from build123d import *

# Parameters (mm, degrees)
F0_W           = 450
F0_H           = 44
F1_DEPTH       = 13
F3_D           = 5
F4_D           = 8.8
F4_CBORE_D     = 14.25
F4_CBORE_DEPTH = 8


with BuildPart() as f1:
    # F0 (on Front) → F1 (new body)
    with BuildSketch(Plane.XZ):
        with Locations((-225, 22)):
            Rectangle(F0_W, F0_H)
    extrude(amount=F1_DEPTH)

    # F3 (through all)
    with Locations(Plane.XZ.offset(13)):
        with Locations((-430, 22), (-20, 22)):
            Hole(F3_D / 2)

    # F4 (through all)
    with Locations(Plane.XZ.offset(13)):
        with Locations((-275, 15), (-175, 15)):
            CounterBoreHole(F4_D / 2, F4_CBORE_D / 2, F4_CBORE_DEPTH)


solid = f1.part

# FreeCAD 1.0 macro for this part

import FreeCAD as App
import Part
import Sketcher
Q = App.Units.Quantity


def add_polygon(sketch, points):
    """Adds a closed chain of lines whose ends are joined by coincident constraints."""
    first, n = sketch.GeometryCount, len(points)
    for a, b in zip(points, points[1:] + points[:1]):
        sketch.addGeometry(Part.LineSegment(App.Vector(*a, 0), App.Vector(*b, 0)), False)
    for i in range(n):
        sketch.addConstraint(Sketcher.Constraint("Coincident", first + i, 2, first + (i + 1) % n, 1))

doc = App.newDocument("Part")
body = doc.addObject("PartDesign::Body", "Body")

# Sketch on XZ plane
sketch1 = body.newObject("Sketcher::SketchObject", "Sketch")
sketch1.AttachmentSupport = (doc.getObject("XZ_Plane"), [""])
sketch1.MapMode = "FlatFace"
add_polygon(sketch1, [(-450, 44), (-450, 0), (0, 0), (0, 44)])  # lines 0-3
sketch1.addConstraint([
    Sketcher.Constraint("Vertical", 0),
    Sketcher.Constraint("Horizontal", 1),
    Sketcher.Constraint("Vertical", 2),
    Sketcher.Constraint("Horizontal", 3),
    Sketcher.Constraint("Coincident", 1, 2, -1, 1),
    Sketcher.Constraint("DistanceX", 1, 1, 1, 2, Q("450 mm")),
    Sketcher.Constraint("DistanceY", 0, 2, 0, 1, Q("44 mm")),
])
pad1 = body.newObject("PartDesign::Pad", "Pad")
pad1.Profile = sketch1
pad1.Length = 13

# Sketch on XZ plane
sketch2 = body.newObject("Sketcher::SketchObject", "Sketch001")
sketch2.AttachmentSupport = (doc.getObject("XZ_Plane"), [""])
sketch2.MapMode = "FlatFace"
sketch2.AttachmentOffset = App.Placement(App.Vector(0, 0, 13), App.Rotation())
sketch2.addGeometry([
    Part.Circle(App.Vector(-430, 22, 0), App.Vector(0, 0, 1), 2.5),
    Part.Circle(App.Vector(-20, 22, 0), App.Vector(0, 0, 1), 2.5),
], False)
sketch2.addConstraint([
    Sketcher.Constraint("Equal", 0, 1),
    Sketcher.Constraint("Horizontal", 0, 3, 1, 3),
    Sketcher.Constraint("Diameter", 0, Q("5 mm")),
    Sketcher.Constraint("DistanceX", 0, 3, -1, 1, Q("430 mm")),
    Sketcher.Constraint("DistanceY", -1, 1, 0, 3, Q("22 mm")),
    Sketcher.Constraint("DistanceX", 1, 3, -1, 1, Q("20 mm")),
])
doc.recompute()
hole = body.newObject("PartDesign::Hole", "Hole")
hole.Profile = sketch2
hole.ThreadType = "None"
hole.Diameter = 5
hole.DepthType = "ThroughAll"

# Sketch on XZ plane
sketch3 = body.newObject("Sketcher::SketchObject", "Sketch002")
sketch3.AttachmentSupport = (doc.getObject("XZ_Plane"), [""])
sketch3.MapMode = "FlatFace"
sketch3.AttachmentOffset = App.Placement(App.Vector(0, 0, 13), App.Rotation())
sketch3.addGeometry([
    Part.Circle(App.Vector(-275, 15, 0), App.Vector(0, 0, 1), 4.4),
    Part.Circle(App.Vector(-175, 15, 0), App.Vector(0, 0, 1), 4.4),
], False)
sketch3.addConstraint([
    Sketcher.Constraint("Equal", 0, 1),
    Sketcher.Constraint("Horizontal", 0, 3, 1, 3),
    Sketcher.Constraint("Diameter", 0, Q("8.8 mm")),
    Sketcher.Constraint("DistanceX", 0, 3, -1, 1, Q("275 mm")),
    Sketcher.Constraint("DistanceY", -1, 1, 0, 3, Q("15 mm")),
    Sketcher.Constraint("DistanceX", 1, 3, -1, 1, Q("175 mm")),
])
doc.recompute()
hole2 = body.newObject("PartDesign::Hole", "Hole001")
hole2.Profile = sketch3
hole2.ThreadType = "None"
hole2.Diameter = 8.8
hole2.DepthType = "ThroughAll"
hole2.HoleCutType = "Counterbore"
hole2.HoleCutDiameter = 14.25
hole2.HoleCutDepth = 8

doc.recompute()
